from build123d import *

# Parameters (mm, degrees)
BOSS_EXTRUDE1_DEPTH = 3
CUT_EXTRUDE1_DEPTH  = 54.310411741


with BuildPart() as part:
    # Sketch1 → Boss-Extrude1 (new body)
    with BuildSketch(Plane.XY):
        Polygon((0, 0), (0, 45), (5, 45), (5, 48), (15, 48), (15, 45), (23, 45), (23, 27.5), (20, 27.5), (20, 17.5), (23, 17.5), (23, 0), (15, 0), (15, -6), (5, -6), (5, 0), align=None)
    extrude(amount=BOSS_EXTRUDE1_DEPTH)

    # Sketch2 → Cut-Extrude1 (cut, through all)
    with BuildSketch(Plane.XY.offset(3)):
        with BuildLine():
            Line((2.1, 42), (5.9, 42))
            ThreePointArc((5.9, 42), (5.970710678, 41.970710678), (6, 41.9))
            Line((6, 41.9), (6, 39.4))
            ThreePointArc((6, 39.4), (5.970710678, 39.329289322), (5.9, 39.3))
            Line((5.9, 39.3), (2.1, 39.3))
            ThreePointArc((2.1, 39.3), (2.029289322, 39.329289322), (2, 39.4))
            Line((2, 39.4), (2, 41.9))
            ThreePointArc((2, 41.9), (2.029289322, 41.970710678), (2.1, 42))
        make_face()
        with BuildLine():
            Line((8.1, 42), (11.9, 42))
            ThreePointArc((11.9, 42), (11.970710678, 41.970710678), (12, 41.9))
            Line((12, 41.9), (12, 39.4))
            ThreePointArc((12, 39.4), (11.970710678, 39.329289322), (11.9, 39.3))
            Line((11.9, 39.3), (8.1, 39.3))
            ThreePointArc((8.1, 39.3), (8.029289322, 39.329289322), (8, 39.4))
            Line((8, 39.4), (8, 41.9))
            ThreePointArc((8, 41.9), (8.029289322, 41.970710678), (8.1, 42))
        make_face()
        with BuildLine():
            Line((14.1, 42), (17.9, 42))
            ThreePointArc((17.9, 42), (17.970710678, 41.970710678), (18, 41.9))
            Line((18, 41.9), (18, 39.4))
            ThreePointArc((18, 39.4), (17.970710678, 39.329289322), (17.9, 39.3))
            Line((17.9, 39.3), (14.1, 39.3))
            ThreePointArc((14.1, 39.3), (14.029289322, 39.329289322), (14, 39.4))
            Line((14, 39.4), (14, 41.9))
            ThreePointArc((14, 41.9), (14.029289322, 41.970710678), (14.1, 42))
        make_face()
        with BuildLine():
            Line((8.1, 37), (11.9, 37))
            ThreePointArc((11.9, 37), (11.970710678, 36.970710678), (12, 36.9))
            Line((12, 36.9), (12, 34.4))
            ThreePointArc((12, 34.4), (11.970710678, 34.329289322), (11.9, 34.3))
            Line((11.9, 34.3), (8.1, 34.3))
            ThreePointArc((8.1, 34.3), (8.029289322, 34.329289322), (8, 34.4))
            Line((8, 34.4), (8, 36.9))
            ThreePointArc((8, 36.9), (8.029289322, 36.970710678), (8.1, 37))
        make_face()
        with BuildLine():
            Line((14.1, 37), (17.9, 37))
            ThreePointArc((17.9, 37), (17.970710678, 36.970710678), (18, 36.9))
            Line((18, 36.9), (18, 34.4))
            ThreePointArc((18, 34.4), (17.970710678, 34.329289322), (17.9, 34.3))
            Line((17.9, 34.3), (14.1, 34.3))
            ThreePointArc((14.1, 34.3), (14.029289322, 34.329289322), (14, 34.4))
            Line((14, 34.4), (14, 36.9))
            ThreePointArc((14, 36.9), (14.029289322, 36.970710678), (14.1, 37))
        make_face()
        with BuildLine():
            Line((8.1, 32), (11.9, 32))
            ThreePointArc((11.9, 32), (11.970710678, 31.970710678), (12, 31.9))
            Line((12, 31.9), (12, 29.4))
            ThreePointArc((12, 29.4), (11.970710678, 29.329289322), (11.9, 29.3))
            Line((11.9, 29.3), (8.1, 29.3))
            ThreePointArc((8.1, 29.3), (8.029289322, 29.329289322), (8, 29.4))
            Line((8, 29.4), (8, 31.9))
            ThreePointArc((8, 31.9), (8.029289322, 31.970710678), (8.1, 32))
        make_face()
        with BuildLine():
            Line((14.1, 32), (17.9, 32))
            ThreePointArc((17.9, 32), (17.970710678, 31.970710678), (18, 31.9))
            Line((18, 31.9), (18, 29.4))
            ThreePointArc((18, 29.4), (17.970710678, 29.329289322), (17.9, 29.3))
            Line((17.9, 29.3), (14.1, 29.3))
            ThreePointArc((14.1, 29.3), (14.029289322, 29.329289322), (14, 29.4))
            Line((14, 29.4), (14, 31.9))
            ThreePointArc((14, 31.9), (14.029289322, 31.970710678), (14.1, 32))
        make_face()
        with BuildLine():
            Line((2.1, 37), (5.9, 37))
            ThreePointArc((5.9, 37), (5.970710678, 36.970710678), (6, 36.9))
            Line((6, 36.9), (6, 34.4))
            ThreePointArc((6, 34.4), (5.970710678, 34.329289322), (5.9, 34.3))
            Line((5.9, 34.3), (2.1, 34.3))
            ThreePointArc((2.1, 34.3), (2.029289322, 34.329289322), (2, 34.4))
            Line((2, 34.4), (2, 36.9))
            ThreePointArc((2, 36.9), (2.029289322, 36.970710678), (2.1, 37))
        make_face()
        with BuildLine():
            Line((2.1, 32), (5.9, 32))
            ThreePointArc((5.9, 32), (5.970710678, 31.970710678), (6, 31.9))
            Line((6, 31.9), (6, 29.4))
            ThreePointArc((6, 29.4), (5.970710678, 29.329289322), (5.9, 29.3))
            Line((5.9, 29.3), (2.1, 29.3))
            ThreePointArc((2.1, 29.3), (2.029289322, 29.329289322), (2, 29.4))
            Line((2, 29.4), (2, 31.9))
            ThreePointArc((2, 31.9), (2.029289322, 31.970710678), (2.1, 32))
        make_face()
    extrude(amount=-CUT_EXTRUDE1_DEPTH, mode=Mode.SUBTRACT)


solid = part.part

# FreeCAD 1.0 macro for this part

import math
import FreeCAD as App
import Part
import Sketcher
from FreeCAD import Vector
Q = App.Units.Quantity

doc = App.newDocument("Part")
params = doc.addObject("Spreadsheet::Sheet", "Params")
for row, (alias, value) in enumerate([
    ("sketch1_width", "5 mm"),
    ("sketch1_width2", "10 mm"),
    ("sketch1_width3", "8 mm"),
    ("sketch1_width4", "3 mm"),
    ("sketch1_height", "45 mm"),
    ("pad1_length", "3 mm"),
    ("sketch2_radius", "0.1 mm"),
    ("sketch2_width", "3.8 mm"),
    ("sketch2_height", "2.5 mm"),
], start=1):
    params.set(f"A{row}", alias)
    params.set(f"B{row}", "=" + value)
    params.setAlias(f"B{row}", alias)

body = doc.addObject("PartDesign::Body", "Body")

# Sketch on XY plane
sketch1 = doc.addObject("Sketcher::SketchObject", "Sketch")
body.addObject(sketch1)
sketch1.AttachmentSupport = (doc.XY_Plane, [""])
sketch1.MapMode = "FlatFace"
sketch1.addGeometry([
    Part.LineSegment(Vector(0, 45, 0), Vector(0, 0, 0)),  # 0
    Part.LineSegment(Vector(0, 0, 0), Vector(5, 0, 0)),  # 1
    Part.LineSegment(Vector(5, 0, 0), Vector(5, -6, 0)),  # 2
    Part.LineSegment(Vector(5, -6, 0), Vector(15, -6, 0)),  # 3
    Part.LineSegment(Vector(15, -6, 0), Vector(15, 0, 0)),  # 4
    Part.LineSegment(Vector(15, 0, 0), Vector(23, 0, 0)),  # 5
    Part.LineSegment(Vector(23, 0, 0), Vector(23, 17.5, 0)),  # 6
    Part.LineSegment(Vector(23, 17.5, 0), Vector(20, 17.5, 0)),  # 7
    Part.LineSegment(Vector(20, 17.5, 0), Vector(20, 27.5, 0)),  # 8
    Part.LineSegment(Vector(20, 27.5, 0), Vector(23, 27.5, 0)),  # 9
    Part.LineSegment(Vector(23, 27.5, 0), Vector(23, 45, 0)),  # 10
    Part.LineSegment(Vector(23, 45, 0), Vector(15, 45, 0)),  # 11
    Part.LineSegment(Vector(15, 45, 0), Vector(15, 48, 0)),  # 12
    Part.LineSegment(Vector(15, 48, 0), Vector(5, 48, 0)),  # 13
    Part.LineSegment(Vector(5, 48, 0), Vector(5, 45, 0)),  # 14
    Part.LineSegment(Vector(5, 45, 0), Vector(0, 45, 0)),  # 15
], False)
sketch1.addConstraint([
    Sketcher.Constraint("Coincident", 0, 2, 1, 1),
    Sketcher.Constraint("Coincident", 1, 2, 2, 1),
    Sketcher.Constraint("Coincident", 2, 2, 3, 1),
    Sketcher.Constraint("Coincident", 3, 2, 4, 1),
    Sketcher.Constraint("Coincident", 4, 2, 5, 1),
    Sketcher.Constraint("Coincident", 5, 2, 6, 1),
    Sketcher.Constraint("Coincident", 6, 2, 7, 1),
    Sketcher.Constraint("Coincident", 7, 2, 8, 1),
    Sketcher.Constraint("Coincident", 8, 2, 9, 1),
    Sketcher.Constraint("Coincident", 9, 2, 10, 1),
    Sketcher.Constraint("Coincident", 10, 2, 11, 1),
    Sketcher.Constraint("Coincident", 11, 2, 12, 1),
    Sketcher.Constraint("Coincident", 12, 2, 13, 1),
    Sketcher.Constraint("Coincident", 13, 2, 14, 1),
    Sketcher.Constraint("Coincident", 14, 2, 15, 1),
    Sketcher.Constraint("Coincident", 15, 2, 0, 1),
    Sketcher.Constraint("Vertical", 0),
    Sketcher.Constraint("Horizontal", 1),
    Sketcher.Constraint("Vertical", 2),
    Sketcher.Constraint("Horizontal", 3),
    Sketcher.Constraint("Vertical", 4),
    Sketcher.Constraint("Horizontal", 5),
    Sketcher.Constraint("Vertical", 6),
    Sketcher.Constraint("Horizontal", 7),
    Sketcher.Constraint("Vertical", 8),
    Sketcher.Constraint("Horizontal", 9),
    Sketcher.Constraint("Vertical", 10),
    Sketcher.Constraint("Horizontal", 11),
    Sketcher.Constraint("Vertical", 12),
    Sketcher.Constraint("Horizontal", 13),
    Sketcher.Constraint("Vertical", 14),
    Sketcher.Constraint("Horizontal", 15),
    Sketcher.Constraint("Coincident", 0, 2, -1, 1),
    Sketcher.Constraint("PointOnObject", 4, 2, -1),
    Sketcher.Constraint("Horizontal", 11, 2, 14, 2),
    Sketcher.Constraint("Vertical", 6, 2, 9, 2),
    Sketcher.Constraint("Vertical", 4, 2, 11, 2),
    Sketcher.Constraint("Vertical", 2, 2, 13, 2),
    Sketcher.Constraint("Equal", 13, 8),
    Sketcher.Constraint("Equal", 6, 10),
    Sketcher.Constraint("Equal", 9, 12),
    Sketcher.Constraint("DistanceX", 1, 1, 1, 2, Q("5 mm")),
    Sketcher.Constraint("DistanceX", 3, 1, 3, 2, Q("10 mm")),
    Sketcher.Constraint("DistanceX", 5, 1, 5, 2, Q("8 mm")),
    Sketcher.Constraint("DistanceX", 7, 2, 7, 1, Q("3 mm")),
    Sketcher.Constraint("DistanceY", 0, 2, 0, 1, Q("45 mm")),
    Sketcher.Constraint("DistanceY", 2, 2, 2, 1, Q("6 mm")),
])
sketch1.setExpression("Constraints[41]", "Params.sketch1_width")
sketch1.setExpression("Constraints[42]", "Params.sketch1_width2")
sketch1.setExpression("Constraints[43]", "Params.sketch1_width3")
sketch1.setExpression("Constraints[44]", "Params.sketch1_width4")
sketch1.setExpression("Constraints[45]", "Params.sketch1_height")
pad1 = doc.addObject("PartDesign::Pad", "Pad")
body.addObject(pad1)
pad1.Profile = sketch1
pad1.setExpression("Length", "Params.pad1_length")

# Sketch on XY plane
sketch2 = doc.addObject("Sketcher::SketchObject", "Sketch001")
body.addObject(sketch2)
sketch2.AttachmentSupport = (doc.XY_Plane, [""])
sketch2.MapMode = "FlatFace"
sketch2.AttachmentOffset = App.Placement(Vector(0, 0, 3), App.Rotation())
sketch2.addGeometry([
    Part.LineSegment(Vector(5.9, 42, 0), Vector(2.1, 42, 0)),  # 0
    Part.ArcOfCircle(Part.Circle(Vector(2.1, 41.9, 0), Vector(0, 0, 1), 0.1), math.radians(90), math.radians(180)),  # 1
    Part.LineSegment(Vector(2, 41.9, 0), Vector(2, 39.4, 0)),  # 2
    Part.ArcOfCircle(Part.Circle(Vector(2.1, 39.4, 0), Vector(0, 0, 1), 0.1), math.radians(180), math.radians(270)),  # 3
    Part.LineSegment(Vector(2.1, 39.3, 0), Vector(5.9, 39.3, 0)),  # 4
    Part.ArcOfCircle(Part.Circle(Vector(5.9, 39.4, 0), Vector(0, 0, 1), 0.1), math.radians(-90), math.radians(0)),  # 5
    Part.LineSegment(Vector(6, 39.4, 0), Vector(6, 41.9, 0)),  # 6
    Part.ArcOfCircle(Part.Circle(Vector(5.9, 41.9, 0), Vector(0, 0, 1), 0.1), math.radians(0), math.radians(90)),  # 7
    Part.LineSegment(Vector(11.9, 42, 0), Vector(8.1, 42, 0)),  # 8
    Part.ArcOfCircle(Part.Circle(Vector(8.1, 41.9, 0), Vector(0, 0, 1), 0.1), math.radians(90), math.radians(180)),  # 9
    Part.LineSegment(Vector(8, 41.9, 0), Vector(8, 39.4, 0)),  # 10
    Part.ArcOfCircle(Part.Circle(Vector(8.1, 39.4, 0), Vector(0, 0, 1), 0.1), math.radians(180), math.radians(270)),  # 11
    Part.LineSegment(Vector(8.1, 39.3, 0), Vector(11.9, 39.3, 0)),  # 12
    Part.ArcOfCircle(Part.Circle(Vector(11.9, 39.4, 0), Vector(0, 0, 1), 0.1), math.radians(-90), math.radians(0)),  # 13
    Part.LineSegment(Vector(12, 39.4, 0), Vector(12, 41.9, 0)),  # 14
    Part.ArcOfCircle(Part.Circle(Vector(11.9, 41.9, 0), Vector(0, 0, 1), 0.1), math.radians(0), math.radians(90)),  # 15
    Part.LineSegment(Vector(17.9, 42, 0), Vector(14.1, 42, 0)),  # 16
    Part.ArcOfCircle(Part.Circle(Vector(14.1, 41.9, 0), Vector(0, 0, 1), 0.1), math.radians(90), math.radians(180)),  # 17
    Part.LineSegment(Vector(14, 41.9, 0), Vector(14, 39.4, 0)),  # 18
    Part.ArcOfCircle(Part.Circle(Vector(14.1, 39.4, 0), Vector(0, 0, 1), 0.1), math.radians(180), math.radians(270)),  # 19
    Part.LineSegment(Vector(14.1, 39.3, 0), Vector(17.9, 39.3, 0)),  # 20
    Part.ArcOfCircle(Part.Circle(Vector(17.9, 39.4, 0), Vector(0, 0, 1), 0.1), math.radians(-90), math.radians(0)),  # 21
    Part.LineSegment(Vector(18, 39.4, 0), Vector(18, 41.9, 0)),  # 22
    Part.ArcOfCircle(Part.Circle(Vector(17.9, 41.9, 0), Vector(0, 0, 1), 0.1), math.radians(0), math.radians(90)),  # 23
    Part.LineSegment(Vector(11.9, 37, 0), Vector(8.1, 37, 0)),  # 24
    Part.ArcOfCircle(Part.Circle(Vector(8.1, 36.9, 0), Vector(0, 0, 1), 0.1), math.radians(90), math.radians(180)),  # 25
    Part.LineSegment(Vector(8, 36.9, 0), Vector(8, 34.4, 0)),  # 26
    Part.ArcOfCircle(Part.Circle(Vector(8.1, 34.4, 0), Vector(0, 0, 1), 0.1), math.radians(180), math.radians(270)),  # 27
    Part.LineSegment(Vector(8.1, 34.3, 0), Vector(11.9, 34.3, 0)),  # 28
    Part.ArcOfCircle(Part.Circle(Vector(11.9, 34.4, 0), Vector(0, 0, 1), 0.1), math.radians(-90), math.radians(0)),  # 29
    Part.LineSegment(Vector(12, 34.4, 0), Vector(12, 36.9, 0)),  # 30
    Part.ArcOfCircle(Part.Circle(Vector(11.9, 36.9, 0), Vector(0, 0, 1), 0.1), math.radians(0), math.radians(90)),  # 31
    Part.LineSegment(Vector(17.9, 37, 0), Vector(14.1, 37, 0)),  # 32
    Part.ArcOfCircle(Part.Circle(Vector(14.1, 36.9, 0), Vector(0, 0, 1), 0.1), math.radians(90), math.radians(180)),  # 33
    Part.LineSegment(Vector(14, 36.9, 0), Vector(14, 34.4, 0)),  # 34
    Part.ArcOfCircle(Part.Circle(Vector(14.1, 34.4, 0), Vector(0, 0, 1), 0.1), math.radians(180), math.radians(270)),  # 35
    Part.LineSegment(Vector(14.1, 34.3, 0), Vector(17.9, 34.3, 0)),  # 36
    Part.ArcOfCircle(Part.Circle(Vector(17.9, 34.4, 0), Vector(0, 0, 1), 0.1), math.radians(-90), math.radians(0)),  # 37
    Part.LineSegment(Vector(18, 34.4, 0), Vector(18, 36.9, 0)),  # 38
    Part.ArcOfCircle(Part.Circle(Vector(17.9, 36.9, 0), Vector(0, 0, 1), 0.1), math.radians(0), math.radians(90)),  # 39
    Part.LineSegment(Vector(11.9, 32, 0), Vector(8.1, 32, 0)),  # 40
    Part.ArcOfCircle(Part.Circle(Vector(8.1, 31.9, 0), Vector(0, 0, 1), 0.1), math.radians(90), math.radians(180)),  # 41
    Part.LineSegment(Vector(8, 31.9, 0), Vector(8, 29.4, 0)),  # 42
    Part.ArcOfCircle(Part.Circle(Vector(8.1, 29.4, 0), Vector(0, 0, 1), 0.1), math.radians(180), math.radians(270)),  # 43
    Part.LineSegment(Vector(8.1, 29.3, 0), Vector(11.9, 29.3, 0)),  # 44
    Part.ArcOfCircle(Part.Circle(Vector(11.9, 29.4, 0), Vector(0, 0, 1), 0.1), math.radians(-90), math.radians(0)),  # 45
    Part.LineSegment(Vector(12, 29.4, 0), Vector(12, 31.9, 0)),  # 46
    Part.ArcOfCircle(Part.Circle(Vector(11.9, 31.9, 0), Vector(0, 0, 1), 0.1), math.radians(0), math.radians(90)),  # 47
    Part.LineSegment(Vector(17.9, 32, 0), Vector(14.1, 32, 0)),  # 48
    Part.ArcOfCircle(Part.Circle(Vector(14.1, 31.9, 0), Vector(0, 0, 1), 0.1), math.radians(90), math.radians(180)),  # 49
    Part.LineSegment(Vector(14, 31.9, 0), Vector(14, 29.4, 0)),  # 50
    Part.ArcOfCircle(Part.Circle(Vector(14.1, 29.4, 0), Vector(0, 0, 1), 0.1), math.radians(180), math.radians(270)),  # 51
    Part.LineSegment(Vector(14.1, 29.3, 0), Vector(17.9, 29.3, 0)),  # 52
    Part.ArcOfCircle(Part.Circle(Vector(17.9, 29.4, 0), Vector(0, 0, 1), 0.1), math.radians(-90), math.radians(0)),  # 53
    Part.LineSegment(Vector(18, 29.4, 0), Vector(18, 31.9, 0)),  # 54
    Part.ArcOfCircle(Part.Circle(Vector(17.9, 31.9, 0), Vector(0, 0, 1), 0.1), math.radians(0), math.radians(90)),  # 55
    Part.LineSegment(Vector(5.9, 37, 0), Vector(2.1, 37, 0)),  # 56
    Part.ArcOfCircle(Part.Circle(Vector(2.1, 36.9, 0), Vector(0, 0, 1), 0.1), math.radians(90), math.radians(180)),  # 57
    Part.LineSegment(Vector(2, 36.9, 0), Vector(2, 34.4, 0)),  # 58
    Part.ArcOfCircle(Part.Circle(Vector(2.1, 34.4, 0), Vector(0, 0, 1), 0.1), math.radians(180), math.radians(270)),  # 59
    Part.LineSegment(Vector(2.1, 34.3, 0), Vector(5.9, 34.3, 0)),  # 60
    Part.ArcOfCircle(Part.Circle(Vector(5.9, 34.4, 0), Vector(0, 0, 1), 0.1), math.radians(-90), math.radians(0)),  # 61
    Part.LineSegment(Vector(6, 34.4, 0), Vector(6, 36.9, 0)),  # 62
    Part.ArcOfCircle(Part.Circle(Vector(5.9, 36.9, 0), Vector(0, 0, 1), 0.1), math.radians(0), math.radians(90)),  # 63
    Part.LineSegment(Vector(5.9, 32, 0), Vector(2.1, 32, 0)),  # 64
    Part.ArcOfCircle(Part.Circle(Vector(2.1, 31.9, 0), Vector(0, 0, 1), 0.1), math.radians(90), math.radians(180)),  # 65
    Part.LineSegment(Vector(2, 31.9, 0), Vector(2, 29.4, 0)),  # 66
    Part.ArcOfCircle(Part.Circle(Vector(2.1, 29.4, 0), Vector(0, 0, 1), 0.1), math.radians(180), math.radians(270)),  # 67
    Part.LineSegment(Vector(2.1, 29.3, 0), Vector(5.9, 29.3, 0)),  # 68
    Part.ArcOfCircle(Part.Circle(Vector(5.9, 29.4, 0), Vector(0, 0, 1), 0.1), math.radians(-90), math.radians(0)),  # 69
    Part.LineSegment(Vector(6, 29.4, 0), Vector(6, 31.9, 0)),  # 70
    Part.ArcOfCircle(Part.Circle(Vector(5.9, 31.9, 0), Vector(0, 0, 1), 0.1), math.radians(0), math.radians(90)),  # 71
], False)
sketch2.addConstraint([
    Sketcher.Constraint("Tangent", 0, 2, 1, 1),
    Sketcher.Constraint("Tangent", 1, 2, 2, 1),
    Sketcher.Constraint("Tangent", 2, 2, 3, 1),
    Sketcher.Constraint("Tangent", 3, 2, 4, 1),
    Sketcher.Constraint("Tangent", 4, 2, 5, 1),
    Sketcher.Constraint("Tangent", 5, 2, 6, 1),
    Sketcher.Constraint("Tangent", 6, 2, 7, 1),
    Sketcher.Constraint("Tangent", 7, 2, 0, 1),
    Sketcher.Constraint("Tangent", 8, 2, 9, 1),
    Sketcher.Constraint("Tangent", 9, 2, 10, 1),
    Sketcher.Constraint("Tangent", 10, 2, 11, 1),
    Sketcher.Constraint("Tangent", 11, 2, 12, 1),
    Sketcher.Constraint("Tangent", 12, 2, 13, 1),
    Sketcher.Constraint("Tangent", 13, 2, 14, 1),
    Sketcher.Constraint("Tangent", 14, 2, 15, 1),
    Sketcher.Constraint("Tangent", 15, 2, 8, 1),
    Sketcher.Constraint("Tangent", 16, 2, 17, 1),
    Sketcher.Constraint("Tangent", 17, 2, 18, 1),
    Sketcher.Constraint("Tangent", 18, 2, 19, 1),
    Sketcher.Constraint("Tangent", 19, 2, 20, 1),
    Sketcher.Constraint("Tangent", 20, 2, 21, 1),
    Sketcher.Constraint("Tangent", 21, 2, 22, 1),
    Sketcher.Constraint("Tangent", 22, 2, 23, 1),
    Sketcher.Constraint("Tangent", 23, 2, 16, 1),
    Sketcher.Constraint("Tangent", 24, 2, 25, 1),
    Sketcher.Constraint("Tangent", 25, 2, 26, 1),
    Sketcher.Constraint("Tangent", 26, 2, 27, 1),
    Sketcher.Constraint("Tangent", 27, 2, 28, 1),
    Sketcher.Constraint("Tangent", 28, 2, 29, 1),
    Sketcher.Constraint("Tangent", 29, 2, 30, 1),
    Sketcher.Constraint("Tangent", 30, 2, 31, 1),
    Sketcher.Constraint("Tangent", 31, 2, 24, 1),
    Sketcher.Constraint("Tangent", 32, 2, 33, 1),
    Sketcher.Constraint("Tangent", 33, 2, 34, 1),
    Sketcher.Constraint("Tangent", 34, 2, 35, 1),
    Sketcher.Constraint("Tangent", 35, 2, 36, 1),
    Sketcher.Constraint("Tangent", 36, 2, 37, 1),
    Sketcher.Constraint("Tangent", 37, 2, 38, 1),
    Sketcher.Constraint("Tangent", 38, 2, 39, 1),
    Sketcher.Constraint("Tangent", 39, 2, 32, 1),
    Sketcher.Constraint("Tangent", 40, 2, 41, 1),
    Sketcher.Constraint("Tangent", 41, 2, 42, 1),
    Sketcher.Constraint("Tangent", 42, 2, 43, 1),
    Sketcher.Constraint("Tangent", 43, 2, 44, 1),
    Sketcher.Constraint("Tangent", 44, 2, 45, 1),
    Sketcher.Constraint("Tangent", 45, 2, 46, 1),
    Sketcher.Constraint("Tangent", 46, 2, 47, 1),
    Sketcher.Constraint("Tangent", 47, 2, 40, 1),
    Sketcher.Constraint("Tangent", 48, 2, 49, 1),
    Sketcher.Constraint("Tangent", 49, 2, 50, 1),
    Sketcher.Constraint("Tangent", 50, 2, 51, 1),
    Sketcher.Constraint("Tangent", 51, 2, 52, 1),
    Sketcher.Constraint("Tangent", 52, 2, 53, 1),
    Sketcher.Constraint("Tangent", 53, 2, 54, 1),
    Sketcher.Constraint("Tangent", 54, 2, 55, 1),
    Sketcher.Constraint("Tangent", 55, 2, 48, 1),
    Sketcher.Constraint("Tangent", 56, 2, 57, 1),
    Sketcher.Constraint("Tangent", 57, 2, 58, 1),
    Sketcher.Constraint("Tangent", 58, 2, 59, 1),
    Sketcher.Constraint("Tangent", 59, 2, 60, 1),
    Sketcher.Constraint("Tangent", 60, 2, 61, 1),
    Sketcher.Constraint("Tangent", 61, 2, 62, 1),
    Sketcher.Constraint("Tangent", 62, 2, 63, 1),
    Sketcher.Constraint("Tangent", 63, 2, 56, 1),
    Sketcher.Constraint("Tangent", 64, 2, 65, 1),
    Sketcher.Constraint("Tangent", 65, 2, 66, 1),
    Sketcher.Constraint("Tangent", 66, 2, 67, 1),
    Sketcher.Constraint("Tangent", 67, 2, 68, 1),
    Sketcher.Constraint("Tangent", 68, 2, 69, 1),
    Sketcher.Constraint("Tangent", 69, 2, 70, 1),
    Sketcher.Constraint("Tangent", 70, 2, 71, 1),
    Sketcher.Constraint("Tangent", 71, 2, 64, 1),
    Sketcher.Constraint("Horizontal", 0),
    Sketcher.Constraint("Vertical", 2),
    Sketcher.Constraint("Horizontal", 4),
    Sketcher.Constraint("Vertical", 6),
    Sketcher.Constraint("Horizontal", 8),
    Sketcher.Constraint("Vertical", 10),
    Sketcher.Constraint("Horizontal", 12),
    Sketcher.Constraint("Vertical", 14),
    Sketcher.Constraint("Horizontal", 16),
    Sketcher.Constraint("Vertical", 18),
    Sketcher.Constraint("Horizontal", 20),
    Sketcher.Constraint("Vertical", 22),
    Sketcher.Constraint("Horizontal", 24),
    Sketcher.Constraint("Vertical", 26),
    Sketcher.Constraint("Horizontal", 28),
    Sketcher.Constraint("Vertical", 30),
    Sketcher.Constraint("Horizontal", 32),
    Sketcher.Constraint("Vertical", 34),
    Sketcher.Constraint("Horizontal", 36),
    Sketcher.Constraint("Vertical", 38),
    Sketcher.Constraint("Horizontal", 40),
    Sketcher.Constraint("Vertical", 42),
    Sketcher.Constraint("Horizontal", 44),
    Sketcher.Constraint("Vertical", 46),
    Sketcher.Constraint("Horizontal", 48),
    Sketcher.Constraint("Vertical", 50),
    Sketcher.Constraint("Horizontal", 52),
    Sketcher.Constraint("Vertical", 54),
    Sketcher.Constraint("Horizontal", 56),
    Sketcher.Constraint("Vertical", 58),
    Sketcher.Constraint("Horizontal", 60),
    Sketcher.Constraint("Vertical", 62),
    Sketcher.Constraint("Horizontal", 64),
    Sketcher.Constraint("Vertical", 66),
    Sketcher.Constraint("Horizontal", 68),
    Sketcher.Constraint("Vertical", 70),
    Sketcher.Constraint("Equal", 1, 3),
    Sketcher.Constraint("Equal", 3, 5),
    Sketcher.Constraint("Equal", 5, 7),
    Sketcher.Constraint("Equal", 7, 9),
    Sketcher.Constraint("Equal", 9, 11),
    Sketcher.Constraint("Equal", 11, 13),
    Sketcher.Constraint("Equal", 13, 15),
    Sketcher.Constraint("Equal", 15, 17),
    Sketcher.Constraint("Equal", 17, 19),
    Sketcher.Constraint("Equal", 19, 21),
    Sketcher.Constraint("Equal", 21, 23),
    Sketcher.Constraint("Equal", 23, 25),
    Sketcher.Constraint("Equal", 25, 27),
    Sketcher.Constraint("Equal", 27, 29),
    Sketcher.Constraint("Equal", 29, 31),
    Sketcher.Constraint("Equal", 31, 33),
    Sketcher.Constraint("Equal", 33, 35),
    Sketcher.Constraint("Equal", 35, 37),
    Sketcher.Constraint("Equal", 37, 39),
    Sketcher.Constraint("Equal", 39, 41),
    Sketcher.Constraint("Equal", 41, 43),
    Sketcher.Constraint("Equal", 43, 45),
    Sketcher.Constraint("Equal", 45, 47),
    Sketcher.Constraint("Equal", 47, 49),
    Sketcher.Constraint("Equal", 49, 51),
    Sketcher.Constraint("Equal", 51, 53),
    Sketcher.Constraint("Equal", 53, 55),
    Sketcher.Constraint("Equal", 55, 57),
    Sketcher.Constraint("Equal", 57, 59),
    Sketcher.Constraint("Equal", 59, 61),
    Sketcher.Constraint("Equal", 61, 63),
    Sketcher.Constraint("Equal", 63, 65),
    Sketcher.Constraint("Equal", 65, 67),
    Sketcher.Constraint("Equal", 67, 69),
    Sketcher.Constraint("Equal", 69, 71),
    Sketcher.Constraint("Horizontal", 7, 3, 9, 3),
    Sketcher.Constraint("Horizontal", 5, 3, 11, 3),
    Sketcher.Constraint("Horizontal", 15, 3, 17, 3),
    Sketcher.Constraint("Horizontal", 13, 3, 19, 3),
    Sketcher.Constraint("Horizontal", 31, 3, 33, 3),
    Sketcher.Constraint("Horizontal", 29, 3, 35, 3),
    Sketcher.Constraint("Horizontal", 47, 3, 49, 3),
    Sketcher.Constraint("Horizontal", 45, 3, 51, 3),
    Sketcher.Constraint("Horizontal", 39, 3, 57, 3),
    Sketcher.Constraint("Horizontal", 37, 3, 59, 3),
    Sketcher.Constraint("Horizontal", 55, 3, 65, 3),
    Sketcher.Constraint("Horizontal", 53, 3, 67, 3),
    Sketcher.Constraint("Vertical", 11, 3, 25, 3),
    Sketcher.Constraint("Vertical", 15, 3, 29, 3),
    Sketcher.Constraint("Vertical", 19, 3, 33, 3),
    Sketcher.Constraint("Vertical", 23, 3, 37, 3),
    Sketcher.Constraint("Vertical", 27, 3, 41, 3),
    Sketcher.Constraint("Vertical", 31, 3, 45, 3),
    Sketcher.Constraint("Vertical", 35, 3, 49, 3),
    Sketcher.Constraint("Vertical", 39, 3, 53, 3),
    Sketcher.Constraint("Vertical", 3, 3, 57, 3),
    Sketcher.Constraint("Vertical", 7, 3, 61, 3),
    Sketcher.Constraint("Vertical", 59, 3, 65, 3),
    Sketcher.Constraint("Vertical", 63, 3, 69, 3),
    Sketcher.Constraint("Equal", 4, 8),
    Sketcher.Constraint("Equal", 12, 16),
    Sketcher.Constraint("Equal", 22, 26),
    Sketcher.Constraint("Equal", 38, 42),
    Sketcher.Constraint("Radius", 1, Q("0.1 mm")),
    Sketcher.Constraint("DistanceX", 0, 2, 0, 1, Q("3.8 mm")),
    Sketcher.Constraint("DistanceY", 2, 2, 2, 1, Q("2.5 mm")),
    Sketcher.Constraint("DistanceY", -1, 1, 0, 2, Q("42 mm")),
    Sketcher.Constraint("DistanceX", -1, 1, 1, 2, Q("2 mm")),
    Sketcher.Constraint("DistanceX", -1, 1, 9, 2, Q("8 mm")),
    Sketcher.Constraint("DistanceX", -1, 1, 17, 2, Q("14 mm")),
    Sketcher.Constraint("DistanceY", -1, 1, 24, 2, Q("37 mm")),
    Sketcher.Constraint("DistanceY", -1, 1, 40, 2, Q("32 mm")),
])
sketch2.setExpression("Constraints[171]", "Params.sketch2_radius")
sketch2.setExpression("Constraints[172]", "Params.sketch2_width")
sketch2.setExpression("Constraints[173]", "Params.sketch2_height")
pocket1 = doc.addObject("PartDesign::Pocket", "Pocket")
body.addObject(pocket1)
pocket1.Profile = sketch2
pocket1.Type = "ThroughAll"

doc.recompute()
